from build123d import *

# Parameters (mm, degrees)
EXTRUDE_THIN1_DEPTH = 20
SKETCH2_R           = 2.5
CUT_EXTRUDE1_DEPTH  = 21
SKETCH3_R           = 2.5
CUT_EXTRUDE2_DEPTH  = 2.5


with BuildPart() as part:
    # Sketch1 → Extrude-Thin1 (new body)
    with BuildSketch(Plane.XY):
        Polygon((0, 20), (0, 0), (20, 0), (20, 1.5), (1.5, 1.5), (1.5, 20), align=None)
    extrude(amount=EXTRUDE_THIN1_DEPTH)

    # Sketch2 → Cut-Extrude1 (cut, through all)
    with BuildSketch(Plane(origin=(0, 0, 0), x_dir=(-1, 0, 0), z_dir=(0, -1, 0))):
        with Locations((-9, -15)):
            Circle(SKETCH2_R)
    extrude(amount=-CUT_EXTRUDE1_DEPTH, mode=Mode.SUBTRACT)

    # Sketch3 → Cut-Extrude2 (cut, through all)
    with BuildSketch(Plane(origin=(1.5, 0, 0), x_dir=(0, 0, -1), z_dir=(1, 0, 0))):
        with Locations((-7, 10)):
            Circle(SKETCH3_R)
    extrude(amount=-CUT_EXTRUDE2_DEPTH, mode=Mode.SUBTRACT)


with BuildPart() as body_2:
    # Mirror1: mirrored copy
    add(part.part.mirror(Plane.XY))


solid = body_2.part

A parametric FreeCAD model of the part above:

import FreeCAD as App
import Part
import Sketcher

doc = App.newDocument("Part")
body = doc.addObject("PartDesign::Body", "Body")

# Sketch on XY plane
sketch1 = body.newObject("Sketcher::SketchObject", "Sketch")
sketch1.AttachmentSupport = (doc.getObject("XY_Plane"), [""])
sketch1.MapMode = "FlatFace"
sketch1.addGeometry([
    Part.LineSegment(App.Vector(0, 20, 0), App.Vector(0, 0, 0)),  # 0
    Part.LineSegment(App.Vector(0, 0, 0), App.Vector(20, 0, 0)),  # 1
    Part.LineSegment(App.Vector(20, 0, 0), App.Vector(20, 1.5, 0)),  # 2
    Part.LineSegment(App.Vector(20, 1.5, 0), App.Vector(1.5, 1.5, 0)),  # 3
    Part.LineSegment(App.Vector(1.5, 1.5, 0), App.Vector(1.5, 20, 0)),  # 4
    Part.LineSegment(App.Vector(1.5, 20, 0), App.Vector(0, 20, 0)),  # 5
], False)
sketch1.addConstraint([
    Sketcher.Constraint("Coincident", 0, 2, 1, 1),
    Sketcher.Constraint("Coincident", 1, 2, 2, 1),
    Sketcher.Constraint("Coincident", 2, 2, 3, 1),
    Sketcher.Constraint("Coincident", 3, 2, 4, 1),
    Sketcher.Constraint("Coincident", 4, 2, 5, 1),
    Sketcher.Constraint("Coincident", 5, 2, 0, 1),
    Sketcher.Constraint("Vertical", 0),
    Sketcher.Constraint("Horizontal", 1),
    Sketcher.Constraint("Vertical", 2),
    Sketcher.Constraint("Horizontal", 3),
    Sketcher.Constraint("Vertical", 4),
    Sketcher.Constraint("Horizontal", 5),
    Sketcher.Constraint("Coincident", 0, 2, -1, 1),
    Sketcher.Constraint("Equal", 1, 0),
    Sketcher.Constraint("Equal", 5, 2),
    Sketcher.Constraint("DistanceX", 1, 1, 1, 2, 20.0),
    Sketcher.Constraint("DistanceX", 3, 2, 3, 1, 18.5),
])
pad1 = body.newObject("PartDesign::Pad", "Pad")
pad1.Profile = sketch1
pad1.Length = 20

# Sketch on XZ plane
sketch2 = body.newObject("Sketcher::SketchObject", "Sketch001")
sketch2.AttachmentSupport = (doc.getObject("XZ_Plane"), [""])
sketch2.MapMode = "FlatFace"
sketch2.addGeometry(Part.Circle(App.Vector(9, 15, 0), App.Vector(0, 0, 1), 2.5), False)
sketch2.addConstraint([
    Sketcher.Constraint("Diameter", 0, 5.0),
    Sketcher.Constraint("DistanceX", -1, 1, 0, 3, 9.0),
    Sketcher.Constraint("DistanceY", -1, 1, 0, 3, 15.0),
])
pocket1 = body.newObject("PartDesign::Pocket", "Pocket")
pocket1.Profile = sketch2
pocket1.Type = "ThroughAll"

# Sketch on YZ plane
sketch3 = body.newObject("Sketcher::SketchObject", "Sketch002")
sketch3.AttachmentSupport = (doc.getObject("YZ_Plane"), [""])
sketch3.MapMode = "FlatFace"
sketch3.AttachmentOffset = App.Placement(App.Vector(0, 0, 1.5), App.Rotation())
sketch3.addGeometry(Part.Circle(App.Vector(10, 7, 0), App.Vector(0, 0, 1), 2.5), False)
sketch3.addConstraint([
    Sketcher.Constraint("Diameter", 0, 5.0),
    Sketcher.Constraint("DistanceX", -1, 1, 0, 3, 10.0),
    Sketcher.Constraint("DistanceY", -1, 1, 0, 3, 7.0),
])
pocket2 = body.newObject("PartDesign::Pocket", "Pocket001")
pocket2.Profile = sketch3
pocket2.Type = "ThroughAll"
body2 = doc.addObject("PartDesign::Body", "Body001")
doc.recompute()

mirroring = doc.addObject("Part::Mirroring", "Mirroring")
mirroring.Source = body
mirroring.Base = App.Vector(0, 0, 0)
mirroring.Normal = App.Vector(0, 0, 1)
body2.BaseFeature = mirroring
doc.recompute()
body.Visibility = False
mirroring.Visibility = False

doc.recompute()
